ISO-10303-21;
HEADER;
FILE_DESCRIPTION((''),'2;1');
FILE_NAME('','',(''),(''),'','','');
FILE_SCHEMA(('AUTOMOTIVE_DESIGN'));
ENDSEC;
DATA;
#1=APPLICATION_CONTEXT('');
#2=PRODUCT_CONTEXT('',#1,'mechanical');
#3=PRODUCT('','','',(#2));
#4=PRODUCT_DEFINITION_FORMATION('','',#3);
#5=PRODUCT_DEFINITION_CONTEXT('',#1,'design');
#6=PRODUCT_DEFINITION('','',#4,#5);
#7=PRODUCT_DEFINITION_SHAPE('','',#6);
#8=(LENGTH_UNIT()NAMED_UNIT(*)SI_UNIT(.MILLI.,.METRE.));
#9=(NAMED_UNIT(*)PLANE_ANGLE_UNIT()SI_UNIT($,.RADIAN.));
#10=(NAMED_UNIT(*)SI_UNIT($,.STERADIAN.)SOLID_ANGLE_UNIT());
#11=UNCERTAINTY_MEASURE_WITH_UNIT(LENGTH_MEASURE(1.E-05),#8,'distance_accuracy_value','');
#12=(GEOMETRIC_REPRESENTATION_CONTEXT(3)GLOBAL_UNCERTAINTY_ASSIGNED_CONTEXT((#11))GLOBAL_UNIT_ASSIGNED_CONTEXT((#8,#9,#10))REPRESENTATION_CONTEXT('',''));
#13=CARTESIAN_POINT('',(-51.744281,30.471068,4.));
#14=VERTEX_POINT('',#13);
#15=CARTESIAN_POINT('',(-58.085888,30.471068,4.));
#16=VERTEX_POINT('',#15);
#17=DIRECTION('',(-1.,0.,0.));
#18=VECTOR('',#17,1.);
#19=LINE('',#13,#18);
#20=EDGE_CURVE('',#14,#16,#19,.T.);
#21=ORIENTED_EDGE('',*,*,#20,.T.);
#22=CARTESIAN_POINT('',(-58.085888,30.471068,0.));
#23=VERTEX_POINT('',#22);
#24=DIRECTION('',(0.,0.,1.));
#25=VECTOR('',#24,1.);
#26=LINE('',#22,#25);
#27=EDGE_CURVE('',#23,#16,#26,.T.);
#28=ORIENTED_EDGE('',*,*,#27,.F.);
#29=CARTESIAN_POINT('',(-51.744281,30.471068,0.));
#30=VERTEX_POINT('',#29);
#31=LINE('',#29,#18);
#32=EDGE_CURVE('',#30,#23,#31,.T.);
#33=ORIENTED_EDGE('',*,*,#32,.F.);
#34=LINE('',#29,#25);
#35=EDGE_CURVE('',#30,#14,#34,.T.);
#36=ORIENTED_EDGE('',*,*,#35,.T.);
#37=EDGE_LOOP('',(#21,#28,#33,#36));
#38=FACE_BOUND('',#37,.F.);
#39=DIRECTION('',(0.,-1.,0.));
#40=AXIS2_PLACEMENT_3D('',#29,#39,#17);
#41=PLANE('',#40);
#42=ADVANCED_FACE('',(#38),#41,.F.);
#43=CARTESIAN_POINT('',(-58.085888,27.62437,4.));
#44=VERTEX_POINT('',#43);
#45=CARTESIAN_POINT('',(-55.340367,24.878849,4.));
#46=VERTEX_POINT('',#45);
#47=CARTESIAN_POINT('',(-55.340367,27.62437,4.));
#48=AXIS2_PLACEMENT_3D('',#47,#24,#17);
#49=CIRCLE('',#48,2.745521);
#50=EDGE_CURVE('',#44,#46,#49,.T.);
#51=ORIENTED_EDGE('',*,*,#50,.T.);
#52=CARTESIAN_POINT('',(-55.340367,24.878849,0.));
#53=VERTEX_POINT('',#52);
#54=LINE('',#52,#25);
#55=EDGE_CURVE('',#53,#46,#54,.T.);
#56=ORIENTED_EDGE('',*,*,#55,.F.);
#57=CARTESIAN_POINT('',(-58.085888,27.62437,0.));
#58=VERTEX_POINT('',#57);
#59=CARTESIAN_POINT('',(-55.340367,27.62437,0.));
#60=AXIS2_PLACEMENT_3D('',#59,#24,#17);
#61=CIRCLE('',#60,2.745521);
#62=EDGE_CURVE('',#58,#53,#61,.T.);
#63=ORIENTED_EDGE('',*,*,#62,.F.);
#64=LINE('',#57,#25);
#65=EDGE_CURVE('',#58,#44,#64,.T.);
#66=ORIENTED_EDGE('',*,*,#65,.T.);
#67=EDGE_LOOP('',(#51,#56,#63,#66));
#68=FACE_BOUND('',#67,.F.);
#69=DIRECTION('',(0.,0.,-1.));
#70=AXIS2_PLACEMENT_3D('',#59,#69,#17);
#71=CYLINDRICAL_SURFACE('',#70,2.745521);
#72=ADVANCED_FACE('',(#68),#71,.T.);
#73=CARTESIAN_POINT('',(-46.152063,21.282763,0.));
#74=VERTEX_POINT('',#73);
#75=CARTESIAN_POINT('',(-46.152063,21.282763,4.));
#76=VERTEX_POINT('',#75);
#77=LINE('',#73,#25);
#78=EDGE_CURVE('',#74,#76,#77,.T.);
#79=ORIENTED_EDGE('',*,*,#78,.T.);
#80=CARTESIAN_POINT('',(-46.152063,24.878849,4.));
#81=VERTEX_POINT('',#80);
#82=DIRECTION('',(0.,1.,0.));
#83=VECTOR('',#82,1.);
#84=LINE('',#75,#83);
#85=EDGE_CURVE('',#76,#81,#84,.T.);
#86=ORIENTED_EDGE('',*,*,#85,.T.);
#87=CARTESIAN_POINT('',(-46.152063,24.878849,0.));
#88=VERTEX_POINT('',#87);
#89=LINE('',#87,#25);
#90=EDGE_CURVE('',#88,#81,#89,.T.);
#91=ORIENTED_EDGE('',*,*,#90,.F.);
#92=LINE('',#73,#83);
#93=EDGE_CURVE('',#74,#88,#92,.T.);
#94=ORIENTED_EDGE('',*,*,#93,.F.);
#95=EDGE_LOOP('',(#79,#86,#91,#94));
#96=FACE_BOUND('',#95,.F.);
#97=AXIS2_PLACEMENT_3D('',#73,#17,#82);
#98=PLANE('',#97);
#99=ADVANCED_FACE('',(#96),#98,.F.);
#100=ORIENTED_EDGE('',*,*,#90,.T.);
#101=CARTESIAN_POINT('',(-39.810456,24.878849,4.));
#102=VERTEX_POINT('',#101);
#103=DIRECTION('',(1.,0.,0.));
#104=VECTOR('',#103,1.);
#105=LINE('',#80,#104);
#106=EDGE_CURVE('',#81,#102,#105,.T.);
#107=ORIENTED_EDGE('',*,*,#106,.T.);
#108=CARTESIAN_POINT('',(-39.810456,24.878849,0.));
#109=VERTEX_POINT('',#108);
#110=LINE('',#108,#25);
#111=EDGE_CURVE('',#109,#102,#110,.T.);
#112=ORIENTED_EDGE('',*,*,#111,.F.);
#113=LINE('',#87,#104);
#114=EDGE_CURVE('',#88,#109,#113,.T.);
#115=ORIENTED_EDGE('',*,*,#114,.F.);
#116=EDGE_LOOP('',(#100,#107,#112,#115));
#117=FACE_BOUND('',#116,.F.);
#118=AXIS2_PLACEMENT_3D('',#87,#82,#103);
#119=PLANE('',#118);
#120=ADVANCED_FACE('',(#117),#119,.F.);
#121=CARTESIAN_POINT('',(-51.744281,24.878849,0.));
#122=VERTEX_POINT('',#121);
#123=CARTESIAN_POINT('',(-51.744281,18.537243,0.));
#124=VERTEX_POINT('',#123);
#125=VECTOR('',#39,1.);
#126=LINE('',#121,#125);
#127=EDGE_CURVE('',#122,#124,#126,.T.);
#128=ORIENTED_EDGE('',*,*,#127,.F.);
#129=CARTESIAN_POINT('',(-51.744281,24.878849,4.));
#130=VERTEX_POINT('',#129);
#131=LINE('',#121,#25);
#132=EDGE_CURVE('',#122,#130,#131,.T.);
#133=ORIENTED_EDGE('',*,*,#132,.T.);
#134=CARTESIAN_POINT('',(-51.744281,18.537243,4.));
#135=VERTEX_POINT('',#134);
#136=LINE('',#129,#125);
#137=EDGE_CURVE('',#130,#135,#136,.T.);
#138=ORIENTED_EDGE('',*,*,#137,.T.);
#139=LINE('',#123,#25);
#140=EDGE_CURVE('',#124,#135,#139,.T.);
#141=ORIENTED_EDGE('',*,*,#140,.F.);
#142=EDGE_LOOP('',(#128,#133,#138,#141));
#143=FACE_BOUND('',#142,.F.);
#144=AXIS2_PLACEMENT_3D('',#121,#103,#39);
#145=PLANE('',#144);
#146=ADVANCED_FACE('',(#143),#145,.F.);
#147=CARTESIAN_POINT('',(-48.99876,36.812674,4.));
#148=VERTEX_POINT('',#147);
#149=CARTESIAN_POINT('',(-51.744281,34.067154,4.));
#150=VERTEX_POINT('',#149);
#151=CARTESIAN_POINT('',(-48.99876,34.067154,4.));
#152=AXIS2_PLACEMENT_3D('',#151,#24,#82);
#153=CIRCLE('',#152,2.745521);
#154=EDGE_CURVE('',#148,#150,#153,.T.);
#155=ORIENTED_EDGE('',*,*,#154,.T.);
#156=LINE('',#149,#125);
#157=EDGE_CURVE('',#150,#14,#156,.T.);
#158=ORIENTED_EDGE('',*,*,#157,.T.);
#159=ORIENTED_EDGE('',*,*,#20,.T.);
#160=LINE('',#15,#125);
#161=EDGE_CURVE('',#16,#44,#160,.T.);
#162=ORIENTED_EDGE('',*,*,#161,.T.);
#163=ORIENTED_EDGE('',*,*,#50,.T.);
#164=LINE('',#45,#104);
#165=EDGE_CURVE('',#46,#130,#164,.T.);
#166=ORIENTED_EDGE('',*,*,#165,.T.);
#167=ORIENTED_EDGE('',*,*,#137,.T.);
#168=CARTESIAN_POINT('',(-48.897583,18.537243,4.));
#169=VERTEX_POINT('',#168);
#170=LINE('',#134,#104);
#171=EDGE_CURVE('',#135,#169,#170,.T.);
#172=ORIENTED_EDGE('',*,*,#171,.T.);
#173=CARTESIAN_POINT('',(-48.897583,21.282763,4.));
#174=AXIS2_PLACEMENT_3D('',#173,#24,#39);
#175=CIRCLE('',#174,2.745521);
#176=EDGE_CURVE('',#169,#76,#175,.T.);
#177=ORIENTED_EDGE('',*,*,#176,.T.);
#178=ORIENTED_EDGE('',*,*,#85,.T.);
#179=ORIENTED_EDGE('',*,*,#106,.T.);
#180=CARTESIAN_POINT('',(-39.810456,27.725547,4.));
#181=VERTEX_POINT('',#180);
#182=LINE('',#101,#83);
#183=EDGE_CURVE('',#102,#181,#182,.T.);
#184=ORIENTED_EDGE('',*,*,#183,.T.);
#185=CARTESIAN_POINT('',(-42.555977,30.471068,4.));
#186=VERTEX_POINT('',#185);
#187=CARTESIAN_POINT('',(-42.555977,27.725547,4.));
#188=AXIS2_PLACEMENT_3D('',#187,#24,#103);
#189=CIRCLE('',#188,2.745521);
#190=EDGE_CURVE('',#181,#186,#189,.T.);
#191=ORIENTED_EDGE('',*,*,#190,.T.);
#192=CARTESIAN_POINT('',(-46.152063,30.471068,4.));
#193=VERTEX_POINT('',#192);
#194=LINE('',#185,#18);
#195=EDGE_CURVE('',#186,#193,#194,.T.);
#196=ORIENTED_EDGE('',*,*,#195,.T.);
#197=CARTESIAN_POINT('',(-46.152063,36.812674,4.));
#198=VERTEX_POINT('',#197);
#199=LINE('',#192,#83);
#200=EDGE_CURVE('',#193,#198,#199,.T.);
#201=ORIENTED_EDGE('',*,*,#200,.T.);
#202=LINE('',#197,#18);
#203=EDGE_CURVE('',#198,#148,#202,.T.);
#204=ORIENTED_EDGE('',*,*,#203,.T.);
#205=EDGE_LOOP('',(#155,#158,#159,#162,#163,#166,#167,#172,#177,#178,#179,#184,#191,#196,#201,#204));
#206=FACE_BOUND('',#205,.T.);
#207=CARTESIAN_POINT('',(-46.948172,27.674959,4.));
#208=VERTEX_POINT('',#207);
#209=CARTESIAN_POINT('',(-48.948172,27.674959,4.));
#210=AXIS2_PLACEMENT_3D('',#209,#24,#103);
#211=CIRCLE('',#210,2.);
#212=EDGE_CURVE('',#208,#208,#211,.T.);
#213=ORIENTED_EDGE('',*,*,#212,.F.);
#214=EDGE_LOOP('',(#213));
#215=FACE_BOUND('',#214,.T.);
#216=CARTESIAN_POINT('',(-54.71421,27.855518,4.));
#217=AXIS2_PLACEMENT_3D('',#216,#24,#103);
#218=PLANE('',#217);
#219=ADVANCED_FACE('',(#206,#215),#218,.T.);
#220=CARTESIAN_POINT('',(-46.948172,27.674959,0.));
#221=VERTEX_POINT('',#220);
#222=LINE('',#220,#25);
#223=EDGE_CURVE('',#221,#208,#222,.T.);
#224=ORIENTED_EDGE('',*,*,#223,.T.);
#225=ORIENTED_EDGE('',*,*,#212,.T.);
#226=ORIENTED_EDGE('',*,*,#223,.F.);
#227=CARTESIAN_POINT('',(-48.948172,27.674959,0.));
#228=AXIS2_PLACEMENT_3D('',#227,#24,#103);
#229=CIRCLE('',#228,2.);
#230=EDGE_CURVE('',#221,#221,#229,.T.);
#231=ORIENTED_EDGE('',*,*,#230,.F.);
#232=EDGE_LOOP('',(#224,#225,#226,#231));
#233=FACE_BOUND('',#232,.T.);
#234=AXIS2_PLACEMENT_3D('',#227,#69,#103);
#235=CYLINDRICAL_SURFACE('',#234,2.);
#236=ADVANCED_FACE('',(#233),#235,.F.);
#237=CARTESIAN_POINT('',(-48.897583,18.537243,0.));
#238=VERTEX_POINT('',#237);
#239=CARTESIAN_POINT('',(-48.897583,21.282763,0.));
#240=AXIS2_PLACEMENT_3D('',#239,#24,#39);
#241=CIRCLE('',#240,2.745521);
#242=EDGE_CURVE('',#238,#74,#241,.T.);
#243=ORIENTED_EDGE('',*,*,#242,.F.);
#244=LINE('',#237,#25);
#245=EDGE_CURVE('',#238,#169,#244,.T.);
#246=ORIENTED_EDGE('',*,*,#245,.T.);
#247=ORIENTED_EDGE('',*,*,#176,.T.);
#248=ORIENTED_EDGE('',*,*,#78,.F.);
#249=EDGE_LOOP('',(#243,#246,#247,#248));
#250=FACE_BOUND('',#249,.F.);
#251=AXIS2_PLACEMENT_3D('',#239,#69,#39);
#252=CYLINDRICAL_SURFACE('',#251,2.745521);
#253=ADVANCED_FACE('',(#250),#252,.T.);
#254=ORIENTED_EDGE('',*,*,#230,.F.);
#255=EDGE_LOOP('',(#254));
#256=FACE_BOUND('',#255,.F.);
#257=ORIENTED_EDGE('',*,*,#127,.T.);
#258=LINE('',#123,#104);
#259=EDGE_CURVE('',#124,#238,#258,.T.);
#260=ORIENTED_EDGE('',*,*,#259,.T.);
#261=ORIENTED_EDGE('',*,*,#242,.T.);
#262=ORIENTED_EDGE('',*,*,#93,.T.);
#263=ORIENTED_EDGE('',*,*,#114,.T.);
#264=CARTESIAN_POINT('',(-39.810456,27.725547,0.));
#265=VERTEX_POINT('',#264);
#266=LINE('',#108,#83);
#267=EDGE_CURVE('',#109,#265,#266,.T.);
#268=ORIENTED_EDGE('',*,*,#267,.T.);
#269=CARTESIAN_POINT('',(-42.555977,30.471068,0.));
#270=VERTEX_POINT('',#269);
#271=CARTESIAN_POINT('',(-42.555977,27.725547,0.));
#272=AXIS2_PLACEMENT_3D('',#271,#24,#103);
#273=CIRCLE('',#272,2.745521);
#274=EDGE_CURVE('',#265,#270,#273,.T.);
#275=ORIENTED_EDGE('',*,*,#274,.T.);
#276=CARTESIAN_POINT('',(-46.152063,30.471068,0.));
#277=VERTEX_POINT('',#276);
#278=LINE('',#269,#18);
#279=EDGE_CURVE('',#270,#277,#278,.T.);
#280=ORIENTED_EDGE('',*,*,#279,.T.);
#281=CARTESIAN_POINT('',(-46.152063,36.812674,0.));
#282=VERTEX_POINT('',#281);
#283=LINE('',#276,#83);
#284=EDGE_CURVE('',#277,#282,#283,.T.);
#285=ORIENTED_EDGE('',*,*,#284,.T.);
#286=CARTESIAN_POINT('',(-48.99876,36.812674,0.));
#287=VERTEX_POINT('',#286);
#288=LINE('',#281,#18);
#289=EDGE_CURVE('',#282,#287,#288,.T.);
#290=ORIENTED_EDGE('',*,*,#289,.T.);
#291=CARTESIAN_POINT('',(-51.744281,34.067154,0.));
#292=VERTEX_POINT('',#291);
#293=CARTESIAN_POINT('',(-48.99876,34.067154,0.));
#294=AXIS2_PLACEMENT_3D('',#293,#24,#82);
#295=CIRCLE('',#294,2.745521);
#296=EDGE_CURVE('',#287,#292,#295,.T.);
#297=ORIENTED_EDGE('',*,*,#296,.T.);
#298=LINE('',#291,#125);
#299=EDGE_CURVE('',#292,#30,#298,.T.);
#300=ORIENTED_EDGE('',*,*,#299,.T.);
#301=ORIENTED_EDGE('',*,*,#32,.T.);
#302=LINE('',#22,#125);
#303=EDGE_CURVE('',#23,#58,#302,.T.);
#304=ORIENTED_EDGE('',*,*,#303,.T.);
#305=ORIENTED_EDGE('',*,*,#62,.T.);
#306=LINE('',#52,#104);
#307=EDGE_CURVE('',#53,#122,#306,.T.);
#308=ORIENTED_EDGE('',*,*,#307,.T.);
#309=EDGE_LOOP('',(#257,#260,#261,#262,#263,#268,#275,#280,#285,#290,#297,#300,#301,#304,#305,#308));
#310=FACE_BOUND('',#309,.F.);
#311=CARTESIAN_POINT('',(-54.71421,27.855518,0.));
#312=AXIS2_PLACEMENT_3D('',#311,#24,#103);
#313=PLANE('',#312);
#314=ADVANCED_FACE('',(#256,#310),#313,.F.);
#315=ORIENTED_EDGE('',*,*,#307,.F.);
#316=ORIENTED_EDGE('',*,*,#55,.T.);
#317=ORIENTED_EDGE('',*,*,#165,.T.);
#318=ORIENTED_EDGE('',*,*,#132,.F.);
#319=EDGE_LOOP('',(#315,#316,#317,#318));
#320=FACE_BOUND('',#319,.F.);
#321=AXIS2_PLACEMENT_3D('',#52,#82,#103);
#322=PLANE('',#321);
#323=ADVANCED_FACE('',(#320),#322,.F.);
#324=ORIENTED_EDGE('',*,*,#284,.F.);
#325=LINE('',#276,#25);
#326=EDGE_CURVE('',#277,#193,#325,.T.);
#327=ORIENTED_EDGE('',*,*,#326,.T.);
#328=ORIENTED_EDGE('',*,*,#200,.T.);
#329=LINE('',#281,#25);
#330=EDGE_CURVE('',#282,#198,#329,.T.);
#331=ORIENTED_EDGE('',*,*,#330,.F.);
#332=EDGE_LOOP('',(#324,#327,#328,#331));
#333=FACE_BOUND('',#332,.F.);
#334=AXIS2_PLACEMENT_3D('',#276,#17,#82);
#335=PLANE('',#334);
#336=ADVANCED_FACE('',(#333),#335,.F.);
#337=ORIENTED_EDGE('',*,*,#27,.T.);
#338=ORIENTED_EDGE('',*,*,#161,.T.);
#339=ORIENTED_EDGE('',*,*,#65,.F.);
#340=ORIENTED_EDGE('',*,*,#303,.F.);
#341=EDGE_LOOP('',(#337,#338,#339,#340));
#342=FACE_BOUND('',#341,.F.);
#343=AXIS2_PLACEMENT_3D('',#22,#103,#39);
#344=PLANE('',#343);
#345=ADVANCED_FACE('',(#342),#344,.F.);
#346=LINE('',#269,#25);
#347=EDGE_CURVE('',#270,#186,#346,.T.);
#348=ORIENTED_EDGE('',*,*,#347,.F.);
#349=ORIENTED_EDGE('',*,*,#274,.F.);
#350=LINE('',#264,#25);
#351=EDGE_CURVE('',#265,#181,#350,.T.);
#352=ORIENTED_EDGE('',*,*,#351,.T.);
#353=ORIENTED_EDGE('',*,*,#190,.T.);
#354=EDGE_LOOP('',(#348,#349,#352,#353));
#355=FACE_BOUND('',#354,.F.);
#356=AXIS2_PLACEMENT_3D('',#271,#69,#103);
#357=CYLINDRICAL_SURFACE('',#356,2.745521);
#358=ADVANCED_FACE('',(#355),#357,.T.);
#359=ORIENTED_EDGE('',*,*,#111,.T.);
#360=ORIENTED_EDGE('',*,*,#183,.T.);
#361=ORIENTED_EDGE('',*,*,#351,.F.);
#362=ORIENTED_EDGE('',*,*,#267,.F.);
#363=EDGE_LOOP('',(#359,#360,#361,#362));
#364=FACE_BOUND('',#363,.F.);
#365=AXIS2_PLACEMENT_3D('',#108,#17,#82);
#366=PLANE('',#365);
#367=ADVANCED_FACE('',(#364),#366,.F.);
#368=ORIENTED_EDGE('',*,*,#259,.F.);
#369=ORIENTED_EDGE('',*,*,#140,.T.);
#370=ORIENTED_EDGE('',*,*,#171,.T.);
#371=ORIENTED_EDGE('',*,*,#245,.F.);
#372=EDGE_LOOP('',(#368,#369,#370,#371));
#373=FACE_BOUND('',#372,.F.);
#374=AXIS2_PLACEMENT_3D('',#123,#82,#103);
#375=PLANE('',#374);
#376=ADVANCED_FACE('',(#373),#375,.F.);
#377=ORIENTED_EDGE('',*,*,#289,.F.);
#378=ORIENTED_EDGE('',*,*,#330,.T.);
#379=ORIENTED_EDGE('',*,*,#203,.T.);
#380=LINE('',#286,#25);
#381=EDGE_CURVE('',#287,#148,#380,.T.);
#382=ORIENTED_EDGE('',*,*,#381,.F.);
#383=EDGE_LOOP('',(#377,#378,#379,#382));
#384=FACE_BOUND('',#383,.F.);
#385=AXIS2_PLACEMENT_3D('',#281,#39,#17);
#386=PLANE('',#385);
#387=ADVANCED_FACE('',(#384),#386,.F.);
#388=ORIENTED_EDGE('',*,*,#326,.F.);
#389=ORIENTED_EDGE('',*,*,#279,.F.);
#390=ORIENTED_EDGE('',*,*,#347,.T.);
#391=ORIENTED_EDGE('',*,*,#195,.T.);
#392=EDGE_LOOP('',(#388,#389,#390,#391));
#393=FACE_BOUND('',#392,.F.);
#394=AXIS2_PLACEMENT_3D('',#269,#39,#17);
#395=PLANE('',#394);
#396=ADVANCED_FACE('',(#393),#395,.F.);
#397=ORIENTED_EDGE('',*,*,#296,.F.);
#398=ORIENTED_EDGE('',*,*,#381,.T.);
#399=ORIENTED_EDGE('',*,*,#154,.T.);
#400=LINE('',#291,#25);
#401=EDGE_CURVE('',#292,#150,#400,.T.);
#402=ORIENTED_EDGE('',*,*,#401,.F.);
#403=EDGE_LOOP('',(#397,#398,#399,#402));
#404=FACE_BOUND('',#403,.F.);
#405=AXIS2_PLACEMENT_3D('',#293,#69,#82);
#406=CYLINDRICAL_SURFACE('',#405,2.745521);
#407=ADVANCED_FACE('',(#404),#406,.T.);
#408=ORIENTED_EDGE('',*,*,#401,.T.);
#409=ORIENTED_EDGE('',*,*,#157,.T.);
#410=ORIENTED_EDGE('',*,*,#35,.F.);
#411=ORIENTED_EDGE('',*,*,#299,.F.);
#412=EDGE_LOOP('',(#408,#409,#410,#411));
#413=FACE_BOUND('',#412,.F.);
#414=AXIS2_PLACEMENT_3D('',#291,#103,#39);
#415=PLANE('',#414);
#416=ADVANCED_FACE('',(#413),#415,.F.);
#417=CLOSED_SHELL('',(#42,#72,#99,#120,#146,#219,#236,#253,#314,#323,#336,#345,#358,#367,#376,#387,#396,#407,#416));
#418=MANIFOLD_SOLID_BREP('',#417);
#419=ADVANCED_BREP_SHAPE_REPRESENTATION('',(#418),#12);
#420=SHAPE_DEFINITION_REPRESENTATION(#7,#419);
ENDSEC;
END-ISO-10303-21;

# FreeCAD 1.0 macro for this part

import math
import FreeCAD as App
import Part
import Sketcher

V = App.Vector

doc = App.newDocument("Part")
body = doc.addObject("PartDesign::Body", "Body")

# Sketch on XY plane
sketch1 = body.newObject("Sketcher::SketchObject", "Sketch")
sketch1.AttachmentSupport = (doc.getObject("XY_Plane"), [""])
sketch1.MapMode = "FlatFace"
sketch1.addGeometry(Part.LineSegment(V(-51.744281, 30.471068, 0), V(-58.085888, 30.471068, 0)), False)
sketch1.addGeometry(Part.LineSegment(V(-58.085888, 30.471068, 0), V(-58.085888, 27.62437, 0)), False)
sketch1.addGeometry(Part.ArcOfCircle(Part.Circle(V(-55.340367, 27.62437, 0), V(0, 0, 1), 2.745521), math.radians(180), math.radians(270)), False)
sketch1.addGeometry(Part.LineSegment(V(-55.340367, 24.878849, 0), V(-51.744281, 24.878849, 0)), False)
sketch1.addGeometry(Part.LineSegment(V(-51.744281, 24.878849, 0), V(-51.744281, 18.537243, 0)), False)
sketch1.addGeometry(Part.LineSegment(V(-51.744281, 18.537243, 0), V(-48.897583, 18.537243, 0)), False)
sketch1.addGeometry(Part.ArcOfCircle(Part.Circle(V(-48.897583, 21.282763, 0), V(0, 0, 1), 2.745521), math.radians(-90), math.radians(0)), False)
sketch1.addGeometry(Part.LineSegment(V(-46.152063, 21.282763, 0), V(-46.152063, 24.878849, 0)), False)
sketch1.addGeometry(Part.LineSegment(V(-46.152063, 24.878849, 0), V(-39.810456, 24.878849, 0)), False)
sketch1.addGeometry(Part.LineSegment(V(-39.810456, 24.878849, 0), V(-39.810456, 27.725547, 0)), False)
sketch1.addGeometry(Part.ArcOfCircle(Part.Circle(V(-42.555977, 27.725547, 0), V(0, 0, 1), 2.745521), math.radians(0), math.radians(90)), False)
sketch1.addGeometry(Part.LineSegment(V(-42.555977, 30.471068, 0), V(-46.152063, 30.471068, 0)), False)
sketch1.addGeometry(Part.LineSegment(V(-46.152063, 30.471068, 0), V(-46.152063, 36.812674, 0)), False)
sketch1.addGeometry(Part.LineSegment(V(-46.152063, 36.812674, 0), V(-48.99876, 36.812674, 0)), False)
sketch1.addGeometry(Part.ArcOfCircle(Part.Circle(V(-48.99876, 34.067154, 0), V(0, 0, 1), 2.745521), math.radians(90), math.radians(180)), False)
sketch1.addGeometry(Part.LineSegment(V(-51.744281, 34.067154, 0), V(-51.744281, 30.471068, 0)), False)
sketch1.addGeometry(Part.Circle(V(-48.948172, 27.674959, 0), V(0, 0, 1), 2), False)
sketch1.addConstraint(Sketcher.Constraint("Coincident", 0, 2, 1, 1))
sketch1.addConstraint(Sketcher.Constraint("Tangent", 1, 2, 2, 1))
sketch1.addConstraint(Sketcher.Constraint("Tangent", 2, 2, 3, 1))
sketch1.addConstraint(Sketcher.Constraint("Coincident", 3, 2, 4, 1))
sketch1.addConstraint(Sketcher.Constraint("Coincident", 4, 2, 5, 1))
sketch1.addConstraint(Sketcher.Constraint("Tangent", 5, 2, 6, 1))
sketch1.addConstraint(Sketcher.Constraint("Tangent", 6, 2, 7, 1))
sketch1.addConstraint(Sketcher.Constraint("Coincident", 7, 2, 8, 1))
sketch1.addConstraint(Sketcher.Constraint("Coincident", 8, 2, 9, 1))
sketch1.addConstraint(Sketcher.Constraint("Tangent", 9, 2, 10, 1))
sketch1.addConstraint(Sketcher.Constraint("Tangent", 10, 2, 11, 1))
sketch1.addConstraint(Sketcher.Constraint("Coincident", 11, 2, 12, 1))
sketch1.addConstraint(Sketcher.Constraint("Coincident", 12, 2, 13, 1))
sketch1.addConstraint(Sketcher.Constraint("Tangent", 13, 2, 14, 1))
sketch1.addConstraint(Sketcher.Constraint("Tangent", 14, 2, 15, 1))
sketch1.addConstraint(Sketcher.Constraint("Coincident", 15, 2, 0, 1))
sketch1.addConstraint(Sketcher.Constraint("Horizontal", 0))
sketch1.addConstraint(Sketcher.Constraint("Vertical", 1))
sketch1.addConstraint(Sketcher.Constraint("Horizontal", 3))
sketch1.addConstraint(Sketcher.Constraint("Vertical", 4))
sketch1.addConstraint(Sketcher.Constraint("Horizontal", 5))
sketch1.addConstraint(Sketcher.Constraint("Vertical", 7))
sketch1.addConstraint(Sketcher.Constraint("Horizontal", 8))
sketch1.addConstraint(Sketcher.Constraint("Vertical", 9))
sketch1.addConstraint(Sketcher.Constraint("Horizontal", 11))
sketch1.addConstraint(Sketcher.Constraint("Vertical", 12))
sketch1.addConstraint(Sketcher.Constraint("Horizontal", 13))
sketch1.addConstraint(Sketcher.Constraint("Vertical", 15))
sketch1.addConstraint(Sketcher.Constraint("Equal", 2, 6))
sketch1.addConstraint(Sketcher.Constraint("Equal", 6, 10))
sketch1.addConstraint(Sketcher.Constraint("Equal", 10, 14))
sketch1.addConstraint(Sketcher.Constraint("Horizontal", 3, 2, 7, 2))
sketch1.addConstraint(Sketcher.Constraint("Horizontal", 0, 2, 10, 2))
sketch1.addConstraint(Sketcher.Constraint("Vertical", 7, 2, 11, 2))
sketch1.addConstraint(Sketcher.Constraint("Vertical", 4, 2, 14, 2))
sketch1.addConstraint(Sketcher.Constraint("Equal", 0, 8))
sketch1.addConstraint(Sketcher.Constraint("Equal", 13, 1))
sketch1.addConstraint(Sketcher.Constraint("Equal", 8, 4))
sketch1.addConstraint(Sketcher.Constraint("Equal", 4, 12))
sketch1.addConstraint(Sketcher.Constraint("Diameter", 16, 4.0))
sketch1.addConstraint(Sketcher.Constraint("Radius", 2, 2.745521))
sketch1.addConstraint(Sketcher.Constraint("DistanceX", 0, 2, 0, 1, 6.341607))
sketch1.addConstraint(Sketcher.Constraint("DistanceX", 5, 1, 5, 2, 2.846698))
sketch1.addConstraint(Sketcher.Constraint("DistanceY", -1, 1, 2, 3, 27.62437))
sketch1.addConstraint(Sketcher.Constraint("DistanceX", 14, 3, -1, 1, 48.99876))
sketch1.addConstraint(Sketcher.Constraint("DistanceX", 16, 3, -1, 1, 48.948172))
sketch1.addConstraint(Sketcher.Constraint("DistanceY", -1, 1, 16, 3, 27.674959))
pad1 = body.newObject("PartDesign::Pad", "Pad")
pad1.Profile = sketch1
pad1.Length = 4

doc.recompute()
